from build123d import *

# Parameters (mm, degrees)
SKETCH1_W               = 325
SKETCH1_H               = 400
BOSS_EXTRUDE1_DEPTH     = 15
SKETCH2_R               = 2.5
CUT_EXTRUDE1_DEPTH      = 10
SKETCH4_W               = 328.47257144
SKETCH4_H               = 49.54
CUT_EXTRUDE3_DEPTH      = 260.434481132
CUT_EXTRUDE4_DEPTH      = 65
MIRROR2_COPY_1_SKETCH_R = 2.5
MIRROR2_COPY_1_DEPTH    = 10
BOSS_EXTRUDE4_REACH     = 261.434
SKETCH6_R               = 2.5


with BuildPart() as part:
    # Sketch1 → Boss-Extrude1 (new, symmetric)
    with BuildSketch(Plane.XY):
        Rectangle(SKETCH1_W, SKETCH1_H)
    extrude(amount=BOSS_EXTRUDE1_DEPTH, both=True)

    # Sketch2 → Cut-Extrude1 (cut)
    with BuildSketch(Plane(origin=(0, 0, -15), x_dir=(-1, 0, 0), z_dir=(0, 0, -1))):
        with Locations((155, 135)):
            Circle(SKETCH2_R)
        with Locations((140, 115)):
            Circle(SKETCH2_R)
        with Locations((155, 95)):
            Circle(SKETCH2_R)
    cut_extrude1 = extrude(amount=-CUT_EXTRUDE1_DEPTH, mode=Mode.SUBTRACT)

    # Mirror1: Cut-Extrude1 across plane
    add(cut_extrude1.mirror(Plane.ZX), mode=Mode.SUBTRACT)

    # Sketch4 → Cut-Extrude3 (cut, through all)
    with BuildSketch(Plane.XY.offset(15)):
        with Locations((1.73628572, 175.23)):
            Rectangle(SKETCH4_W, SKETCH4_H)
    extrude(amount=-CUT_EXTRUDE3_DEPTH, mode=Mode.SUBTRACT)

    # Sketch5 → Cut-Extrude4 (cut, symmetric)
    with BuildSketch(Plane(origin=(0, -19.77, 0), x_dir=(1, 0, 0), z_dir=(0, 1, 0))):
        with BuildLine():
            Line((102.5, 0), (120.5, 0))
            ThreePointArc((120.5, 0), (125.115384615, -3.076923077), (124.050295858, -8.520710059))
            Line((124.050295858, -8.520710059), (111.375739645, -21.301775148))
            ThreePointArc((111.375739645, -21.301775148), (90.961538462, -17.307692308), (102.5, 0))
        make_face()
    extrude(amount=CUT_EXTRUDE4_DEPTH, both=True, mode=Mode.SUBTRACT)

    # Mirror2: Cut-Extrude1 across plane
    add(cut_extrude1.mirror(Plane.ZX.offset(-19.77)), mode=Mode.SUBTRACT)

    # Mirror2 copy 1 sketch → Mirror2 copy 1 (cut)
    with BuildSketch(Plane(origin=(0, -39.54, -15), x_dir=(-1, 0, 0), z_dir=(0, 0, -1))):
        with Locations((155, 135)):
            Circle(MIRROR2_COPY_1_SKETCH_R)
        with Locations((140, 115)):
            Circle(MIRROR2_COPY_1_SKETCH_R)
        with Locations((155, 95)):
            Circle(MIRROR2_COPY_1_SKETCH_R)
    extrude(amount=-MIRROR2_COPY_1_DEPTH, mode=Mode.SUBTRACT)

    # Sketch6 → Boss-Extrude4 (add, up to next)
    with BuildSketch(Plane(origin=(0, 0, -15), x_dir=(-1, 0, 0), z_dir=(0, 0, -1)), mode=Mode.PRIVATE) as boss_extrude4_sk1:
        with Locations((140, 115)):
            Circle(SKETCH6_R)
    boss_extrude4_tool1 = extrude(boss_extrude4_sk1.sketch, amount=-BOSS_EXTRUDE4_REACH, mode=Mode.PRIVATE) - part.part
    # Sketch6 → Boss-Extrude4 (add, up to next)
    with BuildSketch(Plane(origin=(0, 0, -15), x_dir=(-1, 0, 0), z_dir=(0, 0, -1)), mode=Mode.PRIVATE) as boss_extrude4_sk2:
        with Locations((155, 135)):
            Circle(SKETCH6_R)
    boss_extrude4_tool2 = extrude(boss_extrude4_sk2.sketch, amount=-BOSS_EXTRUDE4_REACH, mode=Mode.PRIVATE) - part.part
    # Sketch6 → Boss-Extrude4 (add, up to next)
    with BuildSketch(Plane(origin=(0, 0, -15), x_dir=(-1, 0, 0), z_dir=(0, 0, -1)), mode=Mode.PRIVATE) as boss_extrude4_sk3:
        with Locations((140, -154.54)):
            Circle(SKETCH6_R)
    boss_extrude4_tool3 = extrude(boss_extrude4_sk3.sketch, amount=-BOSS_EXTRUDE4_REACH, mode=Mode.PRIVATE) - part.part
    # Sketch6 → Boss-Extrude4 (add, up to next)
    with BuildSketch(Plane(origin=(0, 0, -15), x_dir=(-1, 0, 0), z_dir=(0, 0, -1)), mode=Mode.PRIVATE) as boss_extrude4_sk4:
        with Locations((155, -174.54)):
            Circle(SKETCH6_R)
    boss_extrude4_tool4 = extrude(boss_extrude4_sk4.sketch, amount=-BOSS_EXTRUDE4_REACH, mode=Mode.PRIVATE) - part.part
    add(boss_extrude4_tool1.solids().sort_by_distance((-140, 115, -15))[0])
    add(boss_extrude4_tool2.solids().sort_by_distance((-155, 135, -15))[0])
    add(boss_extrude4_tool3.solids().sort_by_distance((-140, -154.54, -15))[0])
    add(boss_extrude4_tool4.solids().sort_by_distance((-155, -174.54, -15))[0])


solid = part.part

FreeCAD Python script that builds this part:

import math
import FreeCAD as App
import Part
import Sketcher

V = App.Vector
Q = App.Units.Quantity

doc = App.newDocument("Part")
body = doc.addObject("PartDesign::Body", "Body")

# Sketch on XY plane
sketch1 = body.newObject("Sketcher::SketchObject", "Sketch")
sketch1.AttachmentSupport = (doc.getObject("XY_Plane"), [""])
sketch1.MapMode = "FlatFace"
sketch1.addGeometry(Part.LineSegment(V(-162, 200, 0), V(-162, -200, 0)), False)
sketch1.addGeometry(Part.LineSegment(V(-162, -200, 0), V(162, -200, 0)), False)
sketch1.addGeometry(Part.LineSegment(V(162, -200, 0), V(162, 200, 0)), False)
sketch1.addGeometry(Part.LineSegment(V(162, 200, 0), V(-162, 200, 0)), False)
sketch1.addConstraint(Sketcher.Constraint("Coincident", 0, 2, 1, 1))
sketch1.addConstraint(Sketcher.Constraint("Coincident", 1, 2, 2, 1))
sketch1.addConstraint(Sketcher.Constraint("Coincident", 2, 2, 3, 1))
sketch1.addConstraint(Sketcher.Constraint("Coincident", 3, 2, 0, 1))
sketch1.addConstraint(Sketcher.Constraint("Vertical", 0))
sketch1.addConstraint(Sketcher.Constraint("Horizontal", 1))
sketch1.addConstraint(Sketcher.Constraint("Vertical", 2))
sketch1.addConstraint(Sketcher.Constraint("Horizontal", 3))
sketch1.addConstraint(Sketcher.Constraint("Symmetric", 0, 2, 2, 2, -1, 1))
sketch1.addConstraint(Sketcher.Constraint("DistanceX", 1, 1, 1, 2, Q("325 mm")))
sketch1.addConstraint(Sketcher.Constraint("DistanceY", 0, 2, 0, 1, Q("400 mm")))
pad1 = body.newObject("PartDesign::Pad", "Pad")
pad1.Profile = sketch1
pad1.Length = 30
pad1.Midplane = True

# Sketch on XY plane
sketch2 = body.newObject("Sketcher::SketchObject", "Sketch001")
sketch2.AttachmentSupport = (doc.getObject("XY_Plane"), [""])
sketch2.MapMode = "FlatFace"
sketch2.AttachmentOffset = App.Placement(V(0, 0, -15), App.Rotation())
sketch2.addGeometry(Part.Circle(V(-155, 135, 0), V(0, 0, 1), 2.5), False)
sketch2.addGeometry(Part.Circle(V(-140, 115, 0), V(0, 0, 1), 2.5), False)
sketch2.addGeometry(Part.Circle(V(-155, 95, 0), V(0, 0, 1), 2.5), False)
sketch2.addConstraint(Sketcher.Constraint("Equal", 0, 1))
sketch2.addConstraint(Sketcher.Constraint("Equal", 1, 2))
sketch2.addConstraint(Sketcher.Constraint("Vertical", 0, 3, 2, 3))
sketch2.addConstraint(Sketcher.Constraint("Diameter", 0, Q("5 mm")))
sketch2.addConstraint(Sketcher.Constraint("DistanceX", 0, 3, -1, 1, Q("155 mm")))
sketch2.addConstraint(Sketcher.Constraint("DistanceY", -1, 1, 0, 3, Q("135 mm")))
sketch2.addConstraint(Sketcher.Constraint("DistanceX", 1, 3, -1, 1, Q("140 mm")))
sketch2.addConstraint(Sketcher.Constraint("DistanceY", -1, 1, 1, 3, Q("115 mm")))
sketch2.addConstraint(Sketcher.Constraint("DistanceY", -1, 1, 2, 3, Q("95 mm")))
pocket1 = body.newObject("PartDesign::Pocket", "Pocket")
pocket1.Profile = sketch2
pocket1.Length = 10
pocket1.Reversed = True
doc.recompute()

mirrored = body.newObject("PartDesign::Mirrored", "Mirrored")
mirrored.Originals = [pocket1]
mirrored.MirrorPlane = (doc.getObject("XZ_Plane"), [""])
body.Tip = mirrored

# Sketch on XY plane
sketch3 = body.newObject("Sketcher::SketchObject", "Sketch002")
sketch3.AttachmentSupport = (doc.getObject("XY_Plane"), [""])
sketch3.MapMode = "FlatFace"
sketch3.AttachmentOffset = App.Placement(V(0, 0, 15), App.Rotation())
sketch3.addGeometry(Part.LineSegment(V(-162, 200, 0), V(-162, 150, 0)), False)
sketch3.addGeometry(Part.LineSegment(V(-162, 150, 0), V(166, 150, 0)), False)
sketch3.addGeometry(Part.LineSegment(V(166, 150, 0), V(166, 200, 0)), False)
sketch3.addGeometry(Part.LineSegment(V(166, 200, 0), V(-162, 200, 0)), False)
sketch3.addConstraint(Sketcher.Constraint("Coincident", 0, 2, 1, 1))
sketch3.addConstraint(Sketcher.Constraint("Coincident", 1, 2, 2, 1))
sketch3.addConstraint(Sketcher.Constraint("Coincident", 2, 2, 3, 1))
sketch3.addConstraint(Sketcher.Constraint("Coincident", 3, 2, 0, 1))
sketch3.addConstraint(Sketcher.Constraint("Vertical", 0))
sketch3.addConstraint(Sketcher.Constraint("Horizontal", 1))
sketch3.addConstraint(Sketcher.Constraint("Vertical", 2))
sketch3.addConstraint(Sketcher.Constraint("Horizontal", 3))
sketch3.addConstraint(Sketcher.Constraint("DistanceY", -1, 1, 2, 2, Q("200 mm")))
sketch3.addConstraint(Sketcher.Constraint("DistanceY", 0, 2, 0, 1, Q("49.54 mm")))
sketch3.addConstraint(Sketcher.Constraint("DistanceX", 0, 2, -1, 1, Q("162.5 mm")))
sketch3.addConstraint(Sketcher.Constraint("DistanceX", 1, 1, 1, 2, Q("328.472571 mm")))
pocket2 = body.newObject("PartDesign::Pocket", "Pocket001")
pocket2.Profile = sketch3
pocket2.Type = "ThroughAll"

# Sketch on XZ plane
sketch4 = body.newObject("Sketcher::SketchObject", "Sketch003")
sketch4.AttachmentSupport = (doc.getObject("XZ_Plane"), [""])
sketch4.MapMode = "FlatFace"
sketch4.AttachmentOffset = App.Placement(V(0, 0, 19.77), App.Rotation())
sketch4.addGeometry(Part.LineSegment(V(120, 0, 0), V(102, 0, 0)), False)
sketch4.addGeometry(Part.ArcOfCircle(Part.Circle(V(102, 12, 0), V(0, 0, 1), 12), math.radians(45), math.radians(270)), False)
sketch4.addGeometry(Part.LineSegment(V(111, 21, 0), V(124, 9, 0)), False)
sketch4.addGeometry(Part.ArcOfCircle(Part.Circle(V(120, 5, 0), V(0, 0, 1), 5), math.radians(-90), math.radians(45)), False)
sketch4.addConstraint(Sketcher.Constraint("Tangent", 0, 2, 1, 2))
sketch4.addConstraint(Sketcher.Constraint("Tangent", 1, 1, 2, 1))
sketch4.addConstraint(Sketcher.Constraint("Tangent", 2, 2, 3, 2))
sketch4.addConstraint(Sketcher.Constraint("Tangent", 3, 1, 0, 1))
sketch4.addConstraint(Sketcher.Constraint("Horizontal", 0))
sketch4.addConstraint(Sketcher.Constraint("PointOnObject", 0, 2, -1))
sketch4.addConstraint(Sketcher.Constraint("Radius", 3, Q("5 mm")))
sketch4.addConstraint(Sketcher.Constraint("Radius", 1, Q("12.5 mm")))
sketch4.addConstraint(Sketcher.Constraint("DistanceX", 0, 2, 0, 1, Q("18 mm")))
sketch4.addConstraint(Sketcher.Constraint("DistanceX", -1, 1, 1, 3, Q("102.5 mm")))
pocket3 = body.newObject("PartDesign::Pocket", "Pocket002")
pocket3.Profile = sketch4
pocket3.Length = 130
pocket3.Midplane = True
doc.recompute()

datumplane = body.newObject("PartDesign::Plane", "DatumPlane")
datumplane.AttachmentSupport = (doc.getObject("XZ_Plane"), [""])
datumplane.MapMode = "FlatFace"
datumplane.AttachmentOffset = App.Placement(V(0, 0, 19.77), App.Rotation())
mirrored2 = body.newObject("PartDesign::Mirrored", "Mirrored001")
mirrored2.Originals = [pocket1]
mirrored2.MirrorPlane = (datumplane, [""])
body.Tip = mirrored2

# Sketch on XY plane
sketch5 = body.newObject("Sketcher::SketchObject", "Sketch004")
sketch5.AttachmentSupport = (doc.getObject("XY_Plane"), [""])
sketch5.MapMode = "FlatFace"
sketch5.AttachmentOffset = App.Placement(V(0, 0, -15), App.Rotation())
sketch5.addGeometry(Part.Circle(V(-155, 95.5, 0), V(0, 0, 1), 2.5), False)
sketch5.addGeometry(Part.Circle(V(-140, 75.5, 0), V(0, 0, 1), 2.5), False)
sketch5.addGeometry(Part.Circle(V(-155, 55.5, 0), V(0, 0, 1), 2.5), False)
sketch5.addConstraint(Sketcher.Constraint("Equal", 0, 1))
sketch5.addConstraint(Sketcher.Constraint("Equal", 1, 2))
sketch5.addConstraint(Sketcher.Constraint("Vertical", 0, 3, 2, 3))
sketch5.addConstraint(Sketcher.Constraint("Diameter", 0, Q("5 mm")))
sketch5.addConstraint(Sketcher.Constraint("DistanceX", 0, 3, -1, 1, Q("155 mm")))
sketch5.addConstraint(Sketcher.Constraint("DistanceX", 1, 3, -1, 1, Q("140 mm")))
sketch5.addConstraint(Sketcher.Constraint("DistanceY", 1, 3, 0, 3, Q("20 mm")))
sketch5.addConstraint(Sketcher.Constraint("DistanceY", 2, 3, 1, 3, Q("20 mm")))
sketch5.addConstraint(Sketcher.Constraint("DistanceY", -1, 1, 0, 3, Q("95.46 mm")))
pocket4 = body.newObject("PartDesign::Pocket", "Pocket003")
pocket4.Profile = sketch5
pocket4.Length = 10
pocket4.Reversed = True

# Sketch on XY plane
sketch6 = body.newObject("Sketcher::SketchObject", "Sketch005")
sketch6.AttachmentSupport = (doc.getObject("XY_Plane"), [""])
sketch6.MapMode = "FlatFace"
sketch6.AttachmentOffset = App.Placement(V(0, 0, -15), App.Rotation())
sketch6.addGeometry(Part.Circle(V(-140, 115, 0), V(0, 0, 1), 2.5), False)
sketch6.addConstraint(Sketcher.Constraint("Diameter", 0, Q("5 mm")))
sketch6.addConstraint(Sketcher.Constraint("DistanceX", 0, 3, -1, 1, Q("140 mm")))
sketch6.addConstraint(Sketcher.Constraint("DistanceY", -1, 1, 0, 3, Q("115 mm")))
pad2 = body.newObject("PartDesign::Pad", "Pad001")
pad2.Profile = sketch6
pad2.Type = "UpToFirst"

# Sketch on XY plane
sketch7 = body.newObject("Sketcher::SketchObject", "Sketch006")
sketch7.AttachmentSupport = (doc.getObject("XY_Plane"), [""])
sketch7.MapMode = "FlatFace"
sketch7.AttachmentOffset = App.Placement(V(0, 0, -15), App.Rotation())
sketch7.addGeometry(Part.Circle(V(-155, 135, 0), V(0, 0, 1), 2.5), False)
sketch7.addConstraint(Sketcher.Constraint("Diameter", 0, Q("5 mm")))
sketch7.addConstraint(Sketcher.Constraint("DistanceX", 0, 3, -1, 1, Q("155 mm")))
sketch7.addConstraint(Sketcher.Constraint("DistanceY", -1, 1, 0, 3, Q("135 mm")))
pad3 = body.newObject("PartDesign::Pad", "Pad002")
pad3.Profile = sketch7
pad3.Type = "UpToFirst"

# Sketch on XY plane
sketch8 = body.newObject("Sketcher::SketchObject", "Sketch007")
sketch8.AttachmentSupport = (doc.getObject("XY_Plane"), [""])
sketch8.MapMode = "FlatFace"
sketch8.AttachmentOffset = App.Placement(V(0, 0, -15), App.Rotation())
sketch8.addGeometry(Part.Circle(V(-140, -154.5, 0), V(0, 0, 1), 2.5), False)
sketch8.addConstraint(Sketcher.Constraint("Diameter", 0, Q("5 mm")))
sketch8.addConstraint(Sketcher.Constraint("DistanceX", 0, 3, -1, 1, Q("140 mm")))
sketch8.addConstraint(Sketcher.Constraint("DistanceY", 0, 3, -1, 1, Q("154.54 mm")))
pad4 = body.newObject("PartDesign::Pad", "Pad003")
pad4.Profile = sketch8
pad4.Type = "UpToFirst"

# Sketch on XY plane
sketch9 = body.newObject("Sketcher::SketchObject", "Sketch008")
sketch9.AttachmentSupport = (doc.getObject("XY_Plane"), [""])
sketch9.MapMode = "FlatFace"
sketch9.AttachmentOffset = App.Placement(V(0, 0, -15), App.Rotation())
sketch9.addGeometry(Part.Circle(V(-155, -174.5, 0), V(0, 0, 1), 2.5), False)
sketch9.addConstraint(Sketcher.Constraint("Diameter", 0, Q("5 mm")))
sketch9.addConstraint(Sketcher.Constraint("DistanceX", 0, 3, -1, 1, Q("155 mm")))
sketch9.addConstraint(Sketcher.Constraint("DistanceY", 0, 3, -1, 1, Q("174.54 mm")))
pad5 = body.newObject("PartDesign::Pad", "Pad004")
pad5.Profile = sketch9
pad5.Type = "UpToFirst"

doc.recompute()
